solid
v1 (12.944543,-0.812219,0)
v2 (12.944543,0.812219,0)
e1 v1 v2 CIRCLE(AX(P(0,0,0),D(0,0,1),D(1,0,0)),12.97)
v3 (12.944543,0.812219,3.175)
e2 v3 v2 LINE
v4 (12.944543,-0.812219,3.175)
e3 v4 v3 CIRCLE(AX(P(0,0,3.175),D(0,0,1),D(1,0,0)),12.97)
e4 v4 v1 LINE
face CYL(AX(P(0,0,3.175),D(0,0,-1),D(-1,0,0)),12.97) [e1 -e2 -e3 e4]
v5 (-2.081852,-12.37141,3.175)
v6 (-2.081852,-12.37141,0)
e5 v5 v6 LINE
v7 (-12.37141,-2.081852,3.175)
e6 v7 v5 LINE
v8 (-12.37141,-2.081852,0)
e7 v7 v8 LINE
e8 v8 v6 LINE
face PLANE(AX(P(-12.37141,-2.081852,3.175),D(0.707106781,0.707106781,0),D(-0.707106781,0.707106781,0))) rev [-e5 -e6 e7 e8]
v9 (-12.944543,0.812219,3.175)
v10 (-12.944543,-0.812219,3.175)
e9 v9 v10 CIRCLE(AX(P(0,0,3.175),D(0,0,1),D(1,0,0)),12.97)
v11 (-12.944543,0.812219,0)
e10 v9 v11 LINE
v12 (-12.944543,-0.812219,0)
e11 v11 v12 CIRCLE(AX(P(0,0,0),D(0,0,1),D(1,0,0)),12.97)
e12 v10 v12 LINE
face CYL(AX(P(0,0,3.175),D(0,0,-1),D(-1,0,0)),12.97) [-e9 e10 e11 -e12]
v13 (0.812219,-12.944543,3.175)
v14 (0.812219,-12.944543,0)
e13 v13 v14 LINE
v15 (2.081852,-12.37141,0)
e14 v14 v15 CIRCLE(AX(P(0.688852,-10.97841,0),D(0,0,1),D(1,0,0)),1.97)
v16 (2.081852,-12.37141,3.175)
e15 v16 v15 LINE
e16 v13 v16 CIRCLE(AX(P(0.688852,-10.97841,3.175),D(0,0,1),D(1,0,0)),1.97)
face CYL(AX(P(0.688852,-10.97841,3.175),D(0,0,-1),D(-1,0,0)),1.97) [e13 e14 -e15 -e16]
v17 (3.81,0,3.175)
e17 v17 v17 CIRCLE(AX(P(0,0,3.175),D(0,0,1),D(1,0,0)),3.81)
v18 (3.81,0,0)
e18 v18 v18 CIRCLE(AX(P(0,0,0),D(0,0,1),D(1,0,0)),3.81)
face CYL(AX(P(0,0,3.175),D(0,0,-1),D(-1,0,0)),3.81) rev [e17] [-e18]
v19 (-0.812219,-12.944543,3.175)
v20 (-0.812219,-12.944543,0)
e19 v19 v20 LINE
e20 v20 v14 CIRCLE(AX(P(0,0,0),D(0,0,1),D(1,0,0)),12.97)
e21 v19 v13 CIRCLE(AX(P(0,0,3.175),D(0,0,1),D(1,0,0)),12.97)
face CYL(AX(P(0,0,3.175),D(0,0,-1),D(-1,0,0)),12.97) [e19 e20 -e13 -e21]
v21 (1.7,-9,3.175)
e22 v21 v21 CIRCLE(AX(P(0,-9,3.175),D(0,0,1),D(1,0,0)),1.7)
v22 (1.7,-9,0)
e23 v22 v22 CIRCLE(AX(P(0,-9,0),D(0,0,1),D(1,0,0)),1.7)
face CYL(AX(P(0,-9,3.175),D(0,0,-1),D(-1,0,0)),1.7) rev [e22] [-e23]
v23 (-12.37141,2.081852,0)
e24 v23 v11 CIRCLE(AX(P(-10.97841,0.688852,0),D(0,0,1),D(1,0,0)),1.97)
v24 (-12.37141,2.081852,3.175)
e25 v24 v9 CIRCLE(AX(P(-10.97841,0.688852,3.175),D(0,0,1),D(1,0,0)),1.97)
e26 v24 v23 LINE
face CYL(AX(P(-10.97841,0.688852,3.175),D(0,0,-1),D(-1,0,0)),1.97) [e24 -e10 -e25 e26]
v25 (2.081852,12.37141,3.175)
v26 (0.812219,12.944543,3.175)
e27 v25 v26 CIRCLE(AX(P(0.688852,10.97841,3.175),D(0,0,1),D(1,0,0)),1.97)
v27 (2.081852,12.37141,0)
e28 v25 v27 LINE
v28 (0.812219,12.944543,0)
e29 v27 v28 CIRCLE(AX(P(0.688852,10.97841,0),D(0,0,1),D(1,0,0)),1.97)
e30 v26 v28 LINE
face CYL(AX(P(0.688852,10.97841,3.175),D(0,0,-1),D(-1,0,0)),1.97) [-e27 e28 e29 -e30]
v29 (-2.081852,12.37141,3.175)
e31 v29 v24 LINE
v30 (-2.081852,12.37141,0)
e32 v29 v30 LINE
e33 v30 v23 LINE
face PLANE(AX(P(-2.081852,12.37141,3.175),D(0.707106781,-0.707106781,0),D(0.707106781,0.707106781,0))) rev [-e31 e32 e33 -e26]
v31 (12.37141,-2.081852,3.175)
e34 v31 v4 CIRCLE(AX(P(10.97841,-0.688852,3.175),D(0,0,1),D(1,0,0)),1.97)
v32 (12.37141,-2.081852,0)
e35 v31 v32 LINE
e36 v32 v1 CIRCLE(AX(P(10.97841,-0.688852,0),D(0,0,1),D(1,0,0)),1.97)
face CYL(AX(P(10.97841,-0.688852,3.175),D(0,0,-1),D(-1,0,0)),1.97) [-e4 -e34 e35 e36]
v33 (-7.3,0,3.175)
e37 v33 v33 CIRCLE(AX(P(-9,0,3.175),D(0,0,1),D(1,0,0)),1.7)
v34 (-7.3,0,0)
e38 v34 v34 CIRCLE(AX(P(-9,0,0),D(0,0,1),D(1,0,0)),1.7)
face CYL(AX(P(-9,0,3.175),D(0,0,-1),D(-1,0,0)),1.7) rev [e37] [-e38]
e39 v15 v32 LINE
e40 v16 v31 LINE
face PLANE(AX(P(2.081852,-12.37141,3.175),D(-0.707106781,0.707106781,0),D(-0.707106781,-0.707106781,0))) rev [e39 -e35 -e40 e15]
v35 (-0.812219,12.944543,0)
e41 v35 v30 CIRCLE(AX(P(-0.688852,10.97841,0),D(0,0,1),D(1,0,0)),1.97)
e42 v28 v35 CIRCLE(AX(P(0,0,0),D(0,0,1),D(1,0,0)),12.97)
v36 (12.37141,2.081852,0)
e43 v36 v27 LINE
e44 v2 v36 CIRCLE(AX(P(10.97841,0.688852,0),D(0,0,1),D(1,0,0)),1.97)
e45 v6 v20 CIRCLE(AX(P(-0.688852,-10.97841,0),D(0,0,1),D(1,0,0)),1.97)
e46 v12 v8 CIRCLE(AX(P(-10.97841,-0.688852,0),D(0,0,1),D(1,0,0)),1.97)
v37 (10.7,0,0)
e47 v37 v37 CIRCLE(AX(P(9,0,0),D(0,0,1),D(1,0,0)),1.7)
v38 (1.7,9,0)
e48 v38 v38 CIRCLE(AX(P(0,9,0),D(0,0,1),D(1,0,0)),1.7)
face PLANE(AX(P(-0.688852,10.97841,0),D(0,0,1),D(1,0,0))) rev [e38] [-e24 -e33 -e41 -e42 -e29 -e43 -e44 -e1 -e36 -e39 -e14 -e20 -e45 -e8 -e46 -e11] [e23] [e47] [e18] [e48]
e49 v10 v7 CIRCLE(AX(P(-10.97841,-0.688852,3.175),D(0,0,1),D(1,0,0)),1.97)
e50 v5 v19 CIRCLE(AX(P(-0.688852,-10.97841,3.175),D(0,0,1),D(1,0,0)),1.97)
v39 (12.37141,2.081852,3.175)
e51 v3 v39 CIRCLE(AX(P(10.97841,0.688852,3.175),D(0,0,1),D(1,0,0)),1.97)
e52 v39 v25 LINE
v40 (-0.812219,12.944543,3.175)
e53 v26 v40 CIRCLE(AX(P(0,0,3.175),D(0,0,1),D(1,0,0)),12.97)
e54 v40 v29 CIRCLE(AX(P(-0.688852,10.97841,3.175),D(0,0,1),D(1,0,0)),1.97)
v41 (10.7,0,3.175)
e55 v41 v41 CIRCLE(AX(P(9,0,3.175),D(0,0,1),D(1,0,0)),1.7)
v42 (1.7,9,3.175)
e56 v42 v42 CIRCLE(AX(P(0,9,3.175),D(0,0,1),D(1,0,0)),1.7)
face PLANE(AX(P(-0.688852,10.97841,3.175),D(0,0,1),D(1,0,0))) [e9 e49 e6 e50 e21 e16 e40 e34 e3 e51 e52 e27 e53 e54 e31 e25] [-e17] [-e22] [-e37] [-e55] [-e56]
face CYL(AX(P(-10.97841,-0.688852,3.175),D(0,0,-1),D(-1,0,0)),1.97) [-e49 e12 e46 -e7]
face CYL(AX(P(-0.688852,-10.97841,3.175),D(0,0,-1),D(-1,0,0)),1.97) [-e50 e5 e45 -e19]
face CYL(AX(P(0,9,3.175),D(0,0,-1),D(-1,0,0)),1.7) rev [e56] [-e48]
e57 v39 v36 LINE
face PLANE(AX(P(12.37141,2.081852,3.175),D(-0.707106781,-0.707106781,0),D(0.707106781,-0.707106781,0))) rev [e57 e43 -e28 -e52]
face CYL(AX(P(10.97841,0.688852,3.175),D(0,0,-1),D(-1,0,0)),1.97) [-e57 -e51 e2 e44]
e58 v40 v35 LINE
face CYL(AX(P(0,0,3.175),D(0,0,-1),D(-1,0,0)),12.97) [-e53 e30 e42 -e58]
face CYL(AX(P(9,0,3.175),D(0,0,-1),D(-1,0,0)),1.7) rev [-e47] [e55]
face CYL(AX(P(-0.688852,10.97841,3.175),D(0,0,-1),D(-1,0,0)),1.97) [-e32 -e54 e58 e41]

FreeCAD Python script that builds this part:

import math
import FreeCAD as App
import Part
import Sketcher

V = App.Vector
Q = App.Units.Quantity

doc = App.newDocument("Part")
body = doc.addObject("PartDesign::Body", "Body")

# Sketch on XY plane
sketch1 = body.newObject("Sketcher::SketchObject", "Sketch")
sketch1.AttachmentSupport = (doc.getObject("XY_Plane"), [""])
sketch1.MapMode = "FlatFace"
sketch1.addGeometry([
    Part.LineSegment(V(-2.1, 12.4, 0), V(-12.4, 2.1, 0)),  # 0
    Part.ArcOfCircle(Part.Circle(V(-11, 0.7, 0), V(0, 0, 1), 2), math.radians(135), math.radians(176)),  # 1
    Part.ArcOfCircle(Part.Circle(V(0, 0, 0), V(0, 0, 1), 13), math.radians(176.41), math.radians(183.59)),  # 2
    Part.ArcOfCircle(Part.Circle(V(-11, -0.7, 0), V(0, 0, 1), 2), math.radians(-176), math.radians(-135)),  # 3
    Part.LineSegment(V(-12.4, -2.1, 0), V(-2.1, -12.4, 0)),  # 4
    Part.ArcOfCircle(Part.Circle(V(-0.7, -11, 0), V(0, 0, 1), 2), math.radians(-135), math.radians(-94)),  # 5
    Part.ArcOfCircle(Part.Circle(V(0, 0, 0), V(0, 0, 1), 13), math.radians(-93.59), math.radians(-86.41)),  # 6
    Part.ArcOfCircle(Part.Circle(V(0.7, -11, 0), V(0, 0, 1), 2), math.radians(-86), math.radians(-45)),  # 7
    Part.LineSegment(V(2.1, -12.4, 0), V(12.4, -2.1, 0)),  # 8
    Part.ArcOfCircle(Part.Circle(V(11, -0.7, 0), V(0, 0, 1), 2), math.radians(-45), math.radians(-4)),  # 9
    Part.ArcOfCircle(Part.Circle(V(0, 0, 0), V(0, 0, 1), 13), math.radians(-3.59), math.radians(3.59)),  # 10
    Part.ArcOfCircle(Part.Circle(V(11, 0.7, 0), V(0, 0, 1), 2), math.radians(4), math.radians(45)),  # 11
    Part.LineSegment(V(12.4, 2.1, 0), V(2.1, 12.4, 0)),  # 12
    Part.ArcOfCircle(Part.Circle(V(0.7, 11, 0), V(0, 0, 1), 2), math.radians(45), math.radians(86)),  # 13
    Part.ArcOfCircle(Part.Circle(V(0, 0, 0), V(0, 0, 1), 13), math.radians(86.41), math.radians(93.59)),  # 14
    Part.ArcOfCircle(Part.Circle(V(-0.7, 11, 0), V(0, 0, 1), 2), math.radians(94), math.radians(135)),  # 15
    Part.Circle(V(0, -9, 0), V(0, 0, 1), 1.7),  # 16
    Part.Circle(V(-9, 0, 0), V(0, 0, 1), 1.7),  # 17
    Part.Circle(V(0, 0, 0), V(0, 0, 1), 3.8),  # 18
    Part.Circle(V(9, 0, 0), V(0, 0, 1), 1.7),  # 19
    Part.Circle(V(0, 9, 0), V(0, 0, 1), 1.7),  # 20
], False)
sketch1.addConstraint([
    Sketcher.Constraint("Tangent", 0, 2, 1, 1),
    Sketcher.Constraint("Tangent", 1, 2, 2, 1),
    Sketcher.Constraint("Tangent", 2, 2, 3, 1),
    Sketcher.Constraint("Tangent", 3, 2, 4, 1),
    Sketcher.Constraint("Tangent", 4, 2, 5, 1),
    Sketcher.Constraint("Tangent", 5, 2, 6, 1),
    Sketcher.Constraint("Tangent", 6, 2, 7, 1),
    Sketcher.Constraint("Tangent", 7, 2, 8, 1),
    Sketcher.Constraint("Tangent", 8, 2, 9, 1),
    Sketcher.Constraint("Tangent", 9, 2, 10, 1),
    Sketcher.Constraint("Tangent", 10, 2, 11, 1),
    Sketcher.Constraint("Tangent", 11, 2, 12, 1),
    Sketcher.Constraint("Tangent", 12, 2, 13, 1),
    Sketcher.Constraint("Tangent", 13, 2, 14, 1),
    Sketcher.Constraint("Tangent", 14, 2, 15, 1),
    Sketcher.Constraint("Tangent", 15, 2, 0, 1),
    Sketcher.Constraint("Coincident", 2, 3, -1, 1),
    Sketcher.Constraint("Coincident", 6, 3, -1, 1),
    Sketcher.Constraint("Coincident", 10, 3, -1, 1),
    Sketcher.Constraint("Coincident", 14, 3, -1, 1),
    Sketcher.Constraint("Coincident", 18, 3, -1, 1),
    Sketcher.Constraint("Equal", 1, 3),
    Sketcher.Constraint("Equal", 3, 5),
    Sketcher.Constraint("Equal", 2, 6),
    Sketcher.Constraint("Equal", 5, 7),
    Sketcher.Constraint("Equal", 7, 9),
    Sketcher.Constraint("Equal", 6, 10),
    Sketcher.Constraint("Equal", 9, 11),
    Sketcher.Constraint("Equal", 11, 13),
    Sketcher.Constraint("Equal", 10, 14),
    Sketcher.Constraint("Equal", 13, 15),
    Sketcher.Constraint("Equal", 16, 17),
    Sketcher.Constraint("Equal", 17, 19),
    Sketcher.Constraint("Equal", 19, 20),
    Sketcher.Constraint("Symmetric", 17, 3, 19, 3, -1, 1),
    Sketcher.Constraint("Symmetric", 16, 3, 20, 3, -1, 1),
    Sketcher.Constraint("Symmetric", 0, 2, 8, 2, -1, 1),
    Sketcher.Constraint("Symmetric", 3, 2, 11, 2, -1, 1),
    Sketcher.Constraint("Symmetric", 4, 2, 7, 2, -2),
    Sketcher.Constraint("PointOnObject", 16, 3, -2),
    Sketcher.Constraint("PointOnObject", 17, 3, -1),
    Sketcher.Constraint("Perpendicular", 0, 4),
    Sketcher.Constraint("Diameter", 18, Q("0.3 in")),
    Sketcher.Constraint("Diameter", 16, Q("3.4 mm")),
    Sketcher.Constraint("Radius", 1, Q("1.97 mm")),
    Sketcher.Constraint("Radius", 2, Q("12.97 mm")),
    Sketcher.Constraint("DistanceY", 16, 3, -1, 1, Q("9 mm")),
    Sketcher.Constraint("DistanceX", 17, 3, -1, 1, Q("9 mm")),
    Sketcher.Constraint("DistanceX", 1, 3, -1, 1, Q("10.97841 mm")),
])
pad1 = body.newObject("PartDesign::Pad", "Pad")
pad1.Profile = sketch1
pad1.Length = Q("0.125 in")

doc.recompute()
